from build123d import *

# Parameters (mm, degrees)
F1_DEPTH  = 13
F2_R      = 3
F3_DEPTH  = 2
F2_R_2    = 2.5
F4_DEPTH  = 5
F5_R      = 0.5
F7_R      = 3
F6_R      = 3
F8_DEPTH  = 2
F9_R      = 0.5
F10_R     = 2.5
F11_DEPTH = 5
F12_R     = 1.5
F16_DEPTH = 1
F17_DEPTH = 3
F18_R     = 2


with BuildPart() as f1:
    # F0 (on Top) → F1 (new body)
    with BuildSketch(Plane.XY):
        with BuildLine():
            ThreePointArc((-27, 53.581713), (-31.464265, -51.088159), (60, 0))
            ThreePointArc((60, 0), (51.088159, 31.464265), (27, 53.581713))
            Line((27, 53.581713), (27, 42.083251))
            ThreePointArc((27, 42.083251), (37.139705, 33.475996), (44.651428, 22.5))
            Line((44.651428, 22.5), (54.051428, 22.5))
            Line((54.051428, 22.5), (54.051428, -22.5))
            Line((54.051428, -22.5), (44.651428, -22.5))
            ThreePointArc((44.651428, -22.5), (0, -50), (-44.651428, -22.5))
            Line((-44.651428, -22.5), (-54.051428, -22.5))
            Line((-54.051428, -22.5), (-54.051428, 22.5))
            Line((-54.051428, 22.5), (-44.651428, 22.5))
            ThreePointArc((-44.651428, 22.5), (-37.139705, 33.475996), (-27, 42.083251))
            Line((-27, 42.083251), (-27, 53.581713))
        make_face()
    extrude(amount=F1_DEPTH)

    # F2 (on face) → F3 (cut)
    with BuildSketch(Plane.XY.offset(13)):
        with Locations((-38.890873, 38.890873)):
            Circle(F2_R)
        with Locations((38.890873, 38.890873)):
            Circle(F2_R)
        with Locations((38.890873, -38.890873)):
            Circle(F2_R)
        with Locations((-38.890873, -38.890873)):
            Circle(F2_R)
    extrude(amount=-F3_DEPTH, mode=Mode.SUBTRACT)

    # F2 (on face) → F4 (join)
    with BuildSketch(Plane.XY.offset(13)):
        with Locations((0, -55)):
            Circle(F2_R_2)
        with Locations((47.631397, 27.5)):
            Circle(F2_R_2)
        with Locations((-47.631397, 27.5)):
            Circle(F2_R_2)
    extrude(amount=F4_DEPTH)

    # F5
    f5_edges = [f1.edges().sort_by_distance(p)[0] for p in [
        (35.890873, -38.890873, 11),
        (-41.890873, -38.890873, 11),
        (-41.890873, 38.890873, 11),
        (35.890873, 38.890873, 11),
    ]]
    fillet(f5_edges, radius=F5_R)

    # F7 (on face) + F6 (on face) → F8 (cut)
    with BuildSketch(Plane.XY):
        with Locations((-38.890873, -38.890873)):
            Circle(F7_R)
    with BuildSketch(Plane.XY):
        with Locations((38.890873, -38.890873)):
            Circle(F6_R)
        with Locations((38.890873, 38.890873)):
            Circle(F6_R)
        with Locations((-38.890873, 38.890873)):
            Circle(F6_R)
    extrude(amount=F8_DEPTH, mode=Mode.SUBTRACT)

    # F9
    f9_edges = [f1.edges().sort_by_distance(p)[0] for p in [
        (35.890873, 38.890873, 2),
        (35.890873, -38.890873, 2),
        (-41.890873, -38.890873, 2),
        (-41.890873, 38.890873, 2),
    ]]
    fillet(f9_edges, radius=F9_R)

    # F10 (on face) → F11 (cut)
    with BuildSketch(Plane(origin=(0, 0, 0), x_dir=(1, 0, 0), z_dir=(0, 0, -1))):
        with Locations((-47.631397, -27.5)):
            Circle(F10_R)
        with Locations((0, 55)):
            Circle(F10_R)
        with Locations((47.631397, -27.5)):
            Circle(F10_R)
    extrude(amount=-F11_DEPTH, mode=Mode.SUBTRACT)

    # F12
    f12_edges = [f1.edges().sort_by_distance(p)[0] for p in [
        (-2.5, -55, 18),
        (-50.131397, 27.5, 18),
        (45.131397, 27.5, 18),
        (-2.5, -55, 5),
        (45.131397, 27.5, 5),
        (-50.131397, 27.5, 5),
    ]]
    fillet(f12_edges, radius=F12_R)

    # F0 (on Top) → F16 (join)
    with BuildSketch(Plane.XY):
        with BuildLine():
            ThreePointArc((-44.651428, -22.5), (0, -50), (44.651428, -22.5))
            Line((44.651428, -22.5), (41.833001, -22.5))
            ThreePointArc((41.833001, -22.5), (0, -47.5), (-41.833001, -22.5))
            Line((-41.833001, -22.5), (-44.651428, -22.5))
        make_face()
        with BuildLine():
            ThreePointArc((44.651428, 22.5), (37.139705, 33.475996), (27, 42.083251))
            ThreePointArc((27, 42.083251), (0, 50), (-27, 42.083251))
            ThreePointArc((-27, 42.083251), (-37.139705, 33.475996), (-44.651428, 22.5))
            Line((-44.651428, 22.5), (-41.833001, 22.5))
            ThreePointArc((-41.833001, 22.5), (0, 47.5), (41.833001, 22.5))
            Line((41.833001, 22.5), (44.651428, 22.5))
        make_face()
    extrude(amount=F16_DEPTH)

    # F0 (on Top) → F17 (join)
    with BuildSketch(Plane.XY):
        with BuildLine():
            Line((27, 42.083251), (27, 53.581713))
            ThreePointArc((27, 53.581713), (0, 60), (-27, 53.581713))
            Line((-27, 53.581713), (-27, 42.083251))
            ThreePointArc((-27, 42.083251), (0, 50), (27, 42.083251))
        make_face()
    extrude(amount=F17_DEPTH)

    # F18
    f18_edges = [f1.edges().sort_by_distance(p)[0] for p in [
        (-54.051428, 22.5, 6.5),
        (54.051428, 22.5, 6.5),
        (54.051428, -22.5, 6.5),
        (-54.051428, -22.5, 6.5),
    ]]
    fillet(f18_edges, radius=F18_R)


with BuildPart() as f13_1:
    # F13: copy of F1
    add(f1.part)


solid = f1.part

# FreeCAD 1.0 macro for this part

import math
import FreeCAD as App
import Part
import Sketcher

V = App.Vector
Q = App.Units.Quantity


def edges_at(feature, points):
    """Names of the edges that pass closest to the given points."""
    edges = feature.Shape.Edges
    near = lambda p: min(range(len(edges)), key=lambda i: edges[i].distToShape(Part.Vertex(*p))[0])
    return sorted({f"Edge{near(p) + 1}" for p in points})

doc = App.newDocument("Part")
body = doc.addObject("PartDesign::Body", "Body")

sketch1 = doc.addObject("Sketcher::SketchObject", "Sketch")
body.addObject(sketch1)
sketch1.AttachmentSupport = (doc.XY_Plane, [""])
sketch1.MapMode = "FlatFace"
sketch1.addGeometry(Part.ArcOfCircle(Part.Circle(V(0, 0, 0), V(0, 0, 1), 60), math.radians(117), math.radians(360)), False)
sketch1.addGeometry(Part.ArcOfCircle(Part.Circle(V(0, 0, 0), V(0, 0, 1), 60), math.radians(0), math.radians(63)), False)
sketch1.addGeometry(Part.LineSegment(V(27, 54, 0), V(27, 42, 0)), False)
sketch1.addGeometry(Part.ArcOfCircle(Part.Circle(V(0, 0, 0), V(0, 0, 1), 50), math.radians(27), math.radians(57)), False)
sketch1.addGeometry(Part.LineSegment(V(45, 22, 0), V(54, 22, 0)), False)
sketch1.addGeometry(Part.LineSegment(V(54, 22, 0), V(54, -22, 0)), False)
sketch1.addGeometry(Part.LineSegment(V(54, -22, 0), V(45, -22, 0)), False)
sketch1.addGeometry(Part.ArcOfCircle(Part.Circle(V(0, 0, 0), V(0, 0, 1), 50), math.radians(-153), math.radians(-27)), False)
sketch1.addGeometry(Part.LineSegment(V(-45, -22, 0), V(-54, -22, 0)), False)
sketch1.addGeometry(Part.LineSegment(V(-54, -22, 0), V(-54, 22, 0)), False)
sketch1.addGeometry(Part.LineSegment(V(-54, 22, 0), V(-45, 22, 0)), False)
sketch1.addGeometry(Part.ArcOfCircle(Part.Circle(V(0, 0, 0), V(0, 0, 1), 50), math.radians(123), math.radians(153)), False)
sketch1.addGeometry(Part.LineSegment(V(-27, 42, 0), V(-27, 54, 0)), False)
sketch1.addConstraint(Sketcher.Constraint("Tangent", 0, 2, 1, 1))
sketch1.addConstraint(Sketcher.Constraint("Coincident", 1, 2, 2, 1))
sketch1.addConstraint(Sketcher.Constraint("Coincident", 2, 2, 3, 2))
sketch1.addConstraint(Sketcher.Constraint("Coincident", 3, 1, 4, 1))
sketch1.addConstraint(Sketcher.Constraint("Coincident", 4, 2, 5, 1))
sketch1.addConstraint(Sketcher.Constraint("Coincident", 5, 2, 6, 1))
sketch1.addConstraint(Sketcher.Constraint("Coincident", 6, 2, 7, 2))
sketch1.addConstraint(Sketcher.Constraint("Coincident", 7, 1, 8, 1))
sketch1.addConstraint(Sketcher.Constraint("Coincident", 8, 2, 9, 1))
sketch1.addConstraint(Sketcher.Constraint("Coincident", 9, 2, 10, 1))
sketch1.addConstraint(Sketcher.Constraint("Coincident", 10, 2, 11, 2))
sketch1.addConstraint(Sketcher.Constraint("Coincident", 11, 1, 12, 1))
sketch1.addConstraint(Sketcher.Constraint("Coincident", 12, 2, 0, 1))
sketch1.addConstraint(Sketcher.Constraint("Vertical", 2))
sketch1.addConstraint(Sketcher.Constraint("Horizontal", 4))
sketch1.addConstraint(Sketcher.Constraint("Vertical", 5))
sketch1.addConstraint(Sketcher.Constraint("Horizontal", 6))
sketch1.addConstraint(Sketcher.Constraint("Horizontal", 8))
sketch1.addConstraint(Sketcher.Constraint("Vertical", 9))
sketch1.addConstraint(Sketcher.Constraint("Horizontal", 10))
sketch1.addConstraint(Sketcher.Constraint("Vertical", 12))
sketch1.addConstraint(Sketcher.Constraint("Coincident", 0, 3, -1, 1))
sketch1.addConstraint(Sketcher.Constraint("Coincident", 3, 3, -1, 1))
sketch1.addConstraint(Sketcher.Constraint("Coincident", 7, 3, -1, 1))
sketch1.addConstraint(Sketcher.Constraint("Coincident", 11, 3, -1, 1))
sketch1.addConstraint(Sketcher.Constraint("Equal", 0, 1))
sketch1.addConstraint(Sketcher.Constraint("Equal", 3, 11))
sketch1.addConstraint(Sketcher.Constraint("Symmetric", 3, 1, 7, 1, -1, 1))
sketch1.addConstraint(Sketcher.Constraint("Symmetric", 5, 2, 9, 2, -1, 1))
sketch1.addConstraint(Sketcher.Constraint("PointOnObject", 0, 2, -1))
sketch1.addConstraint(Sketcher.Constraint("Horizontal", 6, 2, 7, 1))
sketch1.addConstraint(Sketcher.Constraint("Horizontal", 2, 2, 11, 1))
sketch1.addConstraint(Sketcher.Constraint("Radius", 0, Q("60 mm")))
sketch1.addConstraint(Sketcher.Constraint("Radius", 7, Q("50 mm")))
sketch1.addConstraint(Sketcher.Constraint("DistanceY", 5, 2, 5, 1, Q("45 mm")))
sketch1.addConstraint(Sketcher.Constraint("DistanceX", 4, 1, 4, 2, Q("9.4 mm")))
sketch1.addConstraint(Sketcher.Constraint("DistanceX", -1, 1, 1, 2, Q("27 mm")))
pad1 = doc.addObject("PartDesign::Pad", "Pad")
body.addObject(pad1)
pad1.Profile = sketch1
pad1.Length = 13

sketch2 = doc.addObject("Sketcher::SketchObject", "Sketch001")
body.addObject(sketch2)
sketch2.AttachmentSupport = (doc.XY_Plane, [""])
sketch2.MapMode = "FlatFace"
sketch2.AttachmentOffset = App.Placement(V(0, 0, 13), App.Rotation())
sketch2.addGeometry(Part.Circle(V(-38.9, 38.9, 0), V(0, 0, 1), 3), False)
sketch2.addGeometry(Part.Circle(V(38.9, 38.9, 0), V(0, 0, 1), 3), False)
sketch2.addGeometry(Part.Circle(V(38.9, -38.9, 0), V(0, 0, 1), 3), False)
sketch2.addGeometry(Part.Circle(V(-38.9, -38.9, 0), V(0, 0, 1), 3), False)
sketch2.addConstraint(Sketcher.Constraint("Equal", 0, 1))
sketch2.addConstraint(Sketcher.Constraint("Equal", 1, 2))
sketch2.addConstraint(Sketcher.Constraint("Equal", 2, 3))
sketch2.addConstraint(Sketcher.Constraint("Symmetric", 0, 3, 2, 3, -1, 1))
sketch2.addConstraint(Sketcher.Constraint("Symmetric", 1, 3, 3, 3, -1, 1))
sketch2.addConstraint(Sketcher.Constraint("Symmetric", 0, 3, 1, 3, -2))
sketch2.addConstraint(Sketcher.Constraint("Diameter", 0, Q("6 mm")))
sketch2.addConstraint(Sketcher.Constraint("DistanceX", 0, 3, -1, 1, Q("38.890873 mm")))
sketch2.addConstraint(Sketcher.Constraint("DistanceY", -1, 1, 0, 3, Q("38.890873 mm")))
pocket1 = doc.addObject("PartDesign::Pocket", "Pocket")
body.addObject(pocket1)
pocket1.Profile = sketch2
pocket1.Length = 2

sketch3 = doc.addObject("Sketcher::SketchObject", "Sketch002")
body.addObject(sketch3)
sketch3.AttachmentSupport = (doc.XY_Plane, [""])
sketch3.MapMode = "FlatFace"
sketch3.AttachmentOffset = App.Placement(V(0, 0, 13), App.Rotation())
sketch3.addGeometry(Part.Circle(V(0, -55, 0), V(0, 0, 1), 2.5), False)
sketch3.addGeometry(Part.Circle(V(47.6, 27.5, 0), V(0, 0, 1), 2.5), False)
sketch3.addGeometry(Part.Circle(V(-47.6, 27.5, 0), V(0, 0, 1), 2.5), False)
sketch3.addConstraint(Sketcher.Constraint("Equal", 0, 1))
sketch3.addConstraint(Sketcher.Constraint("Equal", 1, 2))
sketch3.addConstraint(Sketcher.Constraint("Symmetric", 1, 3, 2, 3, -2))
sketch3.addConstraint(Sketcher.Constraint("PointOnObject", 0, 3, -2))
sketch3.addConstraint(Sketcher.Constraint("Diameter", 0, Q("5 mm")))
sketch3.addConstraint(Sketcher.Constraint("DistanceY", 0, 3, -1, 1, Q("55 mm")))
sketch3.addConstraint(Sketcher.Constraint("DistanceY", -1, 1, 1, 3, Q("27.5 mm")))
sketch3.addConstraint(Sketcher.Constraint("DistanceX", -1, 1, 1, 3, Q("47.631397 mm")))
pad2 = doc.addObject("PartDesign::Pad", "Pad001")
body.addObject(pad2)
pad2.Profile = sketch3
pad2.Length = 5
doc.recompute()

fillet = doc.addObject("PartDesign::Fillet", "Fillet")
body.addObject(fillet)
fillet.Base = (pad2, edges_at(pad2, [
    (35.891, -38.891, 11),
    (-41.891, -38.891, 11),
    (-41.891, 38.891, 11),
    (35.891, 38.891, 11),
]))
fillet.Radius = 0.5

sketch4 = doc.addObject("Sketcher::SketchObject", "Sketch003")
body.addObject(sketch4)
sketch4.AttachmentSupport = (doc.XY_Plane, [""])
sketch4.MapMode = "FlatFace"
sketch4.addGeometry(Part.Circle(V(-38.9, -38.9, 0), V(0, 0, 1), 3), False)
sketch4.addGeometry(Part.Circle(V(38.9, -38.9, 0), V(0, 0, 1), 3), False)
sketch4.addGeometry(Part.Circle(V(38.9, 38.9, 0), V(0, 0, 1), 3), False)
sketch4.addGeometry(Part.Circle(V(-38.9, 38.9, 0), V(0, 0, 1), 3), False)
sketch4.addConstraint(Sketcher.Constraint("Equal", 0, 1))
sketch4.addConstraint(Sketcher.Constraint("Equal", 1, 2))
sketch4.addConstraint(Sketcher.Constraint("Equal", 2, 3))
sketch4.addConstraint(Sketcher.Constraint("Symmetric", 0, 3, 2, 3, -1, 1))
sketch4.addConstraint(Sketcher.Constraint("Symmetric", 1, 3, 3, 3, -1, 1))
sketch4.addConstraint(Sketcher.Constraint("Symmetric", 0, 3, 1, 3, -2))
sketch4.addConstraint(Sketcher.Constraint("Diameter", 0, Q("6 mm")))
sketch4.addConstraint(Sketcher.Constraint("DistanceX", 0, 3, -1, 1, Q("38.890873 mm")))
sketch4.addConstraint(Sketcher.Constraint("DistanceY", 0, 3, -1, 1, Q("38.890873 mm")))
pocket2 = doc.addObject("PartDesign::Pocket", "Pocket001")
body.addObject(pocket2)
pocket2.Profile = sketch4
pocket2.Length = 2
pocket2.Reversed = True
doc.recompute()

fillet2 = doc.addObject("PartDesign::Fillet", "Fillet001")
body.addObject(fillet2)
fillet2.Base = (pocket2, edges_at(pocket2, [
    (35.891, 38.891, 2),
    (35.891, -38.891, 2),
    (-41.891, -38.891, 2),
    (-41.891, 38.891, 2),
]))
fillet2.Radius = 0.5

sketch5 = doc.addObject("Sketcher::SketchObject", "Sketch004")
body.addObject(sketch5)
sketch5.AttachmentSupport = (doc.XY_Plane, [""])
sketch5.MapMode = "FlatFace"
sketch5.addGeometry(Part.Circle(V(-47.6, 27.5, 0), V(0, 0, 1), 2.5), False)
sketch5.addGeometry(Part.Circle(V(0, -55, 0), V(0, 0, 1), 2.5), False)
sketch5.addGeometry(Part.Circle(V(47.6, 27.5, 0), V(0, 0, 1), 2.5), False)
sketch5.addConstraint(Sketcher.Constraint("Equal", 0, 1))
sketch5.addConstraint(Sketcher.Constraint("Equal", 1, 2))
sketch5.addConstraint(Sketcher.Constraint("Symmetric", 0, 3, 2, 3, -2))
sketch5.addConstraint(Sketcher.Constraint("PointOnObject", 1, 3, -2))
sketch5.addConstraint(Sketcher.Constraint("Diameter", 0, Q("5 mm")))
sketch5.addConstraint(Sketcher.Constraint("DistanceY", 1, 3, -1, 1, Q("55 mm")))
sketch5.addConstraint(Sketcher.Constraint("DistanceY", -1, 1, 0, 3, Q("27.5 mm")))
sketch5.addConstraint(Sketcher.Constraint("DistanceX", 0, 3, -1, 1, Q("47.631397 mm")))
pocket3 = doc.addObject("PartDesign::Pocket", "Pocket002")
body.addObject(pocket3)
pocket3.Profile = sketch5
pocket3.Length = 5
pocket3.Reversed = True
doc.recompute()

fillet3 = doc.addObject("PartDesign::Fillet", "Fillet002")
body.addObject(fillet3)
fillet3.Base = (pocket3, edges_at(pocket3, [
    (-2.5, -55, 18),
    (-50.131, 27.5, 18),
    (45.131, 27.5, 18),
    (-2.5, -55, 5),
    (45.131, 27.5, 5),
    (-50.131, 27.5, 5),
]))
fillet3.Radius = 1.5

sketch6 = doc.addObject("Sketcher::SketchObject", "Sketch005")
body.addObject(sketch6)
sketch6.AttachmentSupport = (doc.XY_Plane, [""])
sketch6.MapMode = "FlatFace"
sketch6.addGeometry(Part.ArcOfCircle(Part.Circle(V(0, 0, 0), V(0, 0, 1), 50), math.radians(-153), math.radians(-27)), False)
sketch6.addGeometry(Part.LineSegment(V(44.7, -22.5, 0), V(41.8, -22.5, 0)), False)
sketch6.addGeometry(Part.ArcOfCircle(Part.Circle(V(0, 0, 0), V(0, 0, 1), 47.5), math.radians(-152), math.radians(-28)), False)
sketch6.addGeometry(Part.LineSegment(V(-41.8, -22.5, 0), V(-44.7, -22.5, 0)), False)
sketch6.addGeometry(Part.ArcOfCircle(Part.Circle(V(0, 0, 0), V(0, 0, 1), 50), math.radians(27), math.radians(57)), False)
sketch6.addGeometry(Part.ArcOfCircle(Part.Circle(V(0, 0, 0), V(0, 0, 1), 50), math.radians(57), math.radians(123)), False)
sketch6.addGeometry(Part.ArcOfCircle(Part.Circle(V(0, 0, 0), V(0, 0, 1), 50), math.radians(123), math.radians(153)), False)
sketch6.addGeometry(Part.LineSegment(V(-44.7, 22.5, 0), V(-41.8, 22.5, 0)), False)
sketch6.addGeometry(Part.ArcOfCircle(Part.Circle(V(0, 0, 0), V(0, 0, 1), 47.5), math.radians(28), math.radians(152)), False)
sketch6.addGeometry(Part.LineSegment(V(41.8, 22.5, 0), V(44.7, 22.5, 0)), False)
sketch6.addConstraint(Sketcher.Constraint("Coincident", 0, 2, 1, 1))
sketch6.addConstraint(Sketcher.Constraint("Coincident", 1, 2, 2, 2))
sketch6.addConstraint(Sketcher.Constraint("Coincident", 2, 1, 3, 1))
sketch6.addConstraint(Sketcher.Constraint("Coincident", 3, 2, 0, 1))
sketch6.addConstraint(Sketcher.Constraint("Tangent", 4, 2, 5, 1))
sketch6.addConstraint(Sketcher.Constraint("Tangent", 5, 2, 6, 1))
sketch6.addConstraint(Sketcher.Constraint("Coincident", 6, 2, 7, 1))
sketch6.addConstraint(Sketcher.Constraint("Coincident", 7, 2, 8, 2))
sketch6.addConstraint(Sketcher.Constraint("Coincident", 8, 1, 9, 1))
sketch6.addConstraint(Sketcher.Constraint("Coincident", 9, 2, 4, 1))
sketch6.addConstraint(Sketcher.Constraint("Horizontal", 1))
sketch6.addConstraint(Sketcher.Constraint("Horizontal", 3))
sketch6.addConstraint(Sketcher.Constraint("Horizontal", 7))
sketch6.addConstraint(Sketcher.Constraint("Horizontal", 9))
sketch6.addConstraint(Sketcher.Constraint("Coincident", 0, 3, -1, 1))
sketch6.addConstraint(Sketcher.Constraint("Coincident", 2, 3, -1, 1))
sketch6.addConstraint(Sketcher.Constraint("Coincident", 4, 3, -1, 1))
sketch6.addConstraint(Sketcher.Constraint("Coincident", 6, 3, -1, 1))
sketch6.addConstraint(Sketcher.Constraint("Coincident", 8, 3, -1, 1))
sketch6.addConstraint(Sketcher.Constraint("Equal", 0, 5))
sketch6.addConstraint(Sketcher.Constraint("Equal", 2, 8))
sketch6.addConstraint(Sketcher.Constraint("Horizontal", 1, 2, 2, 1))
sketch6.addConstraint(Sketcher.Constraint("Horizontal", 4, 2, 5, 2))
sketch6.addConstraint(Sketcher.Constraint("Horizontal", 7, 2, 8, 1))
sketch6.addConstraint(Sketcher.Constraint("Vertical", 3, 2, 6, 2))
sketch6.addConstraint(Sketcher.Constraint("Radius", 0, Q("50 mm")))
sketch6.addConstraint(Sketcher.Constraint("Radius", 2, Q("47.499999 mm")))
sketch6.addConstraint(Sketcher.Constraint("DistanceX", -1, 1, 4, 2, Q("27 mm")))
sketch6.addConstraint(Sketcher.Constraint("DistanceY", 3, 2, 6, 2, Q("45 mm")))
pad3 = doc.addObject("PartDesign::Pad", "Pad002")
body.addObject(pad3)
pad3.Profile = sketch6
pad3.Length = 1

sketch7 = doc.addObject("Sketcher::SketchObject", "Sketch006")
body.addObject(sketch7)
sketch7.AttachmentSupport = (doc.XY_Plane, [""])
sketch7.MapMode = "FlatFace"
sketch7.addGeometry(Part.LineSegment(V(27, 42, 0), V(27, 54, 0)), False)
sketch7.addGeometry(Part.ArcOfCircle(Part.Circle(V(0, 0, 0), V(0, 0, 1), 60), math.radians(63), math.radians(117)), False)
sketch7.addGeometry(Part.LineSegment(V(-27, 54, 0), V(-27, 42, 0)), False)
sketch7.addGeometry(Part.ArcOfCircle(Part.Circle(V(0, 0, 0), V(0, 0, 1), 50), math.radians(57), math.radians(123)), False)
sketch7.addConstraint(Sketcher.Constraint("Coincident", 0, 2, 1, 1))
sketch7.addConstraint(Sketcher.Constraint("Coincident", 1, 2, 2, 1))
sketch7.addConstraint(Sketcher.Constraint("Coincident", 2, 2, 3, 2))
sketch7.addConstraint(Sketcher.Constraint("Coincident", 3, 1, 0, 1))
sketch7.addConstraint(Sketcher.Constraint("Vertical", 0))
sketch7.addConstraint(Sketcher.Constraint("Vertical", 2))
sketch7.addConstraint(Sketcher.Constraint("Coincident", 1, 3, -1, 1))
sketch7.addConstraint(Sketcher.Constraint("Coincident", 3, 3, -1, 1))
sketch7.addConstraint(Sketcher.Constraint("Horizontal", 0, 2, 1, 2))
sketch7.addConstraint(Sketcher.Constraint("Radius", 3, Q("50.000001 mm")))
sketch7.addConstraint(Sketcher.Constraint("DistanceX", -1, 1, 0, 2, Q("27 mm")))
sketch7.addConstraint(Sketcher.Constraint("Radius", 1, Q("59.999998 mm")))
pad4 = doc.addObject("PartDesign::Pad", "Pad003")
body.addObject(pad4)
pad4.Profile = sketch7
pad4.Length = 3
doc.recompute()

fillet4 = doc.addObject("PartDesign::Fillet", "Fillet003")
body.addObject(fillet4)
fillet4.Base = (pad4, edges_at(pad4, [
    (-54.051, 22.5, 6.5),
    (54.051, 22.5, 6.5),
    (54.051, -22.5, 6.5),
    (-54.051, -22.5, 6.5),
]))
fillet4.Radius = 2
body2 = doc.addObject("PartDesign::Body", "Body001")
doc.recompute()

body2.BaseFeature = body
doc.recompute()
body.Visibility = False

doc.recompute()
